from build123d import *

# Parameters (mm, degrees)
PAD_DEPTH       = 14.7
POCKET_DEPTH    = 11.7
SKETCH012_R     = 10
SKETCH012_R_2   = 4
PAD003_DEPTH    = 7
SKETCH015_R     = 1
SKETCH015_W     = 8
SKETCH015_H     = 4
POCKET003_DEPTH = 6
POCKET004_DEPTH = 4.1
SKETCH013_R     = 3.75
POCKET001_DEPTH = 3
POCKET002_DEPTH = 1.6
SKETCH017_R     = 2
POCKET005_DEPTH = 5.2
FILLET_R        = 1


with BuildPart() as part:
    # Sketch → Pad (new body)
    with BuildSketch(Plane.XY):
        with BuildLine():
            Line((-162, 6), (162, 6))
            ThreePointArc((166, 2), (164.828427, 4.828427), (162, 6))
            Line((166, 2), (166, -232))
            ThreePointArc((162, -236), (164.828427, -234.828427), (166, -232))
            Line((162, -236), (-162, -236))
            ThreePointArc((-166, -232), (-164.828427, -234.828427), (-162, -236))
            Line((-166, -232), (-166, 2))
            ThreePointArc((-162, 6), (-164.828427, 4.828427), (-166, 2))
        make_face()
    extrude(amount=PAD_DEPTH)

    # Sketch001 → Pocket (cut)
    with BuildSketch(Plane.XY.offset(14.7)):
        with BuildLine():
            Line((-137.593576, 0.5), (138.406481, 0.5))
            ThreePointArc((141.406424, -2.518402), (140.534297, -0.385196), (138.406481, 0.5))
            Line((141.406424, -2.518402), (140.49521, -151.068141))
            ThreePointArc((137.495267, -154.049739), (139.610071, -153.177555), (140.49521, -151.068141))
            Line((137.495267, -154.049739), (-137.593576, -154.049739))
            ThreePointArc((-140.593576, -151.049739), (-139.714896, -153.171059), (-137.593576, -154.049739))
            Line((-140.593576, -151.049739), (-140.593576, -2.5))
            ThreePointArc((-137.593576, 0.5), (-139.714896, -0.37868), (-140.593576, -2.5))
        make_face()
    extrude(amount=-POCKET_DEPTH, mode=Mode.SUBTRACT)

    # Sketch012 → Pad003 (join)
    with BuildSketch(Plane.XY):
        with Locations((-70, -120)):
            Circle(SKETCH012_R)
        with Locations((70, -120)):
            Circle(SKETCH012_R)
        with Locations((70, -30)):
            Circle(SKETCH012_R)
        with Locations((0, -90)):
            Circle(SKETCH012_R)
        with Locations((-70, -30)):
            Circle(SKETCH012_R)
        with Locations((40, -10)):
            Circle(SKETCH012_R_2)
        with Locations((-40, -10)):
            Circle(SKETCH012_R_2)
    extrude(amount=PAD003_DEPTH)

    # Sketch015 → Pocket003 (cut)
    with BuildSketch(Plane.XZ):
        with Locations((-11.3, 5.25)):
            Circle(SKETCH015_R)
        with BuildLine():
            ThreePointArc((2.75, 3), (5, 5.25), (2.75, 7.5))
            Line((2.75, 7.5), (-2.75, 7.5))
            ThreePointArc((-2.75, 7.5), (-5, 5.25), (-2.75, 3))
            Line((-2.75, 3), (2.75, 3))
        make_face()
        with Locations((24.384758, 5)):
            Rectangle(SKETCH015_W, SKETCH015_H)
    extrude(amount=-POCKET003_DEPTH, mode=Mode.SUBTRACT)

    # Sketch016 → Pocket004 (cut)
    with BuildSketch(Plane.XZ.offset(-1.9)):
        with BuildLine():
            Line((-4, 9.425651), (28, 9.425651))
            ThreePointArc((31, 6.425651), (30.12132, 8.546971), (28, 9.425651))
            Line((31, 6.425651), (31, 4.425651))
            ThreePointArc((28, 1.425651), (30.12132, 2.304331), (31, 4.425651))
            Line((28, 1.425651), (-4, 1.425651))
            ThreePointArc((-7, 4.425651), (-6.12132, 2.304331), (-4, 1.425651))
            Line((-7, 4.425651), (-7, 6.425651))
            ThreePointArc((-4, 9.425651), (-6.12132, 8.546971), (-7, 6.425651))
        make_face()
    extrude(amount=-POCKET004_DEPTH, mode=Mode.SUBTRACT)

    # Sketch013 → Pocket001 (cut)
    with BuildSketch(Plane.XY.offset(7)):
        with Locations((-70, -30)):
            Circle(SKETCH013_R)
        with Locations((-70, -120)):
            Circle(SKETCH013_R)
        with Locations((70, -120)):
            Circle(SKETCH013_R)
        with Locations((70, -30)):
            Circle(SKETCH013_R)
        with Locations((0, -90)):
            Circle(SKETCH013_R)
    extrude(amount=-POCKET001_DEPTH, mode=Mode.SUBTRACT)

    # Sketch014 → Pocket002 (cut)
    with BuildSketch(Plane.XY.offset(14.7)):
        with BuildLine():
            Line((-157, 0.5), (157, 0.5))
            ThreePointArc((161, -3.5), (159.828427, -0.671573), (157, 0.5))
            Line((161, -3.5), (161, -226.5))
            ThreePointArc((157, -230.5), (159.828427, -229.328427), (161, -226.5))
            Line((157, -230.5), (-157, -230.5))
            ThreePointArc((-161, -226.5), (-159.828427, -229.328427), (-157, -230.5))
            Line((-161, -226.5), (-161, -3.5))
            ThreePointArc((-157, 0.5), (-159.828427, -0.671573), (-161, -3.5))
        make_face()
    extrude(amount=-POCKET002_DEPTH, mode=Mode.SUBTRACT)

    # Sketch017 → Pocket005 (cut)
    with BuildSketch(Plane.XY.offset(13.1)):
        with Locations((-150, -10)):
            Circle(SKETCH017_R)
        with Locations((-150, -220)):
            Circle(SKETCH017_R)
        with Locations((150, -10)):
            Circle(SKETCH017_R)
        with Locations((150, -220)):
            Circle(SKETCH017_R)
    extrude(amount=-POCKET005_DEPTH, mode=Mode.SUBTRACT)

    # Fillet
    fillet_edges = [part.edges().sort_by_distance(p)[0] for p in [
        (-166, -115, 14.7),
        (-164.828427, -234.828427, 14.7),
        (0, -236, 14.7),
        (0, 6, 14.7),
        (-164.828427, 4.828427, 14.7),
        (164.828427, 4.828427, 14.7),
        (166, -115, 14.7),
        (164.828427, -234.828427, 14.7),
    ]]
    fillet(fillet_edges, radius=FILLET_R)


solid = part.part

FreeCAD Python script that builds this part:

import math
import FreeCAD as App
import Part
import Sketcher
from FreeCAD import Vector


def edges_at(feature, points):
    """Names of the edges that pass closest to the given points."""
    edges = feature.Shape.Edges
    near = lambda p: min(range(len(edges)), key=lambda i: edges[i].distToShape(Part.Vertex(*p))[0])
    return sorted({f"Edge{near(p) + 1}" for p in points})


def add_polygon(sketch, points):
    """Adds a closed chain of lines whose ends are joined by coincident constraints."""
    first, n = sketch.GeometryCount, len(points)
    for a, b in zip(points, points[1:] + points[:1]):
        sketch.addGeometry(Part.LineSegment(App.Vector(*a, 0), App.Vector(*b, 0)), False)
    for i in range(n):
        sketch.addConstraint(Sketcher.Constraint("Coincident", first + i, 2, first + (i + 1) % n, 1))

doc = App.newDocument("Part")
body = doc.addObject("PartDesign::Body", "Body")

sketch1 = doc.addObject("Sketcher::SketchObject", "Sketch")
body.addObject(sketch1)
sketch1.AttachmentSupport = (doc.XY_Plane, [""])
sketch1.MapMode = "FlatFace"
sketch1.addGeometry([
    Part.LineSegment(Vector(162, 6, 0), Vector(-162, 6, 0)),
    Part.ArcOfCircle(Part.Circle(Vector(-162, 2, 0), Vector(0, 0, 1), 4), math.radians(90), math.radians(180)),
    Part.LineSegment(Vector(-166, 2, 0), Vector(-166, -232, 0)),
    Part.ArcOfCircle(Part.Circle(Vector(-162, -232, 0), Vector(0, 0, 1), 4), math.radians(-180), math.radians(-90)),
    Part.LineSegment(Vector(-162, -236, 0), Vector(162, -236, 0)),
    Part.ArcOfCircle(Part.Circle(Vector(162, -232, 0), Vector(0, 0, 1), 4), math.radians(-90), math.radians(0)),
    Part.LineSegment(Vector(166, -232, 0), Vector(166, 2, 0)),
    Part.ArcOfCircle(Part.Circle(Vector(162, 2, 0), Vector(0, 0, 1), 4), math.radians(0), math.radians(90)),
], False)
sketch1.addConstraint([
    Sketcher.Constraint("Tangent", 0, 2, 1, 1),
    Sketcher.Constraint("Tangent", 1, 2, 2, 1),
    Sketcher.Constraint("Tangent", 2, 2, 3, 1),
    Sketcher.Constraint("Tangent", 3, 2, 4, 1),
    Sketcher.Constraint("Tangent", 4, 2, 5, 1),
    Sketcher.Constraint("Tangent", 5, 2, 6, 1),
    Sketcher.Constraint("Tangent", 6, 2, 7, 1),
    Sketcher.Constraint("Tangent", 7, 2, 0, 1),
    Sketcher.Constraint("Horizontal", 0),
    Sketcher.Constraint("Vertical", 2),
    Sketcher.Constraint("Horizontal", 4),
    Sketcher.Constraint("Vertical", 6),
    Sketcher.Constraint("Equal", 1, 3),
    Sketcher.Constraint("Equal", 3, 5),
    Sketcher.Constraint("Equal", 5, 7),
    Sketcher.Constraint("Radius", 1, 4.0),
    Sketcher.Constraint("DistanceX", 0, 2, 0, 1, 324.0),
    Sketcher.Constraint("DistanceY", 2, 2, 2, 1, 234.0),
    Sketcher.Constraint("DistanceX", 1, 3, -1, 1, 162.0),
    Sketcher.Constraint("DistanceY", -1, 1, 1, 3, 2.0),
])
pad1 = doc.addObject("PartDesign::Pad", "Pad")
body.addObject(pad1)
pad1.Profile = sketch1
pad1.Length = 14.7

sketch2 = doc.addObject("Sketcher::SketchObject", "Sketch001")
body.addObject(sketch2)
sketch2.AttachmentSupport = (doc.XY_Plane, [""])
sketch2.MapMode = "FlatFace"
sketch2.AttachmentOffset = App.Placement(Vector(0, 0, 14.7), App.Rotation())
sketch2.addGeometry([
    Part.LineSegment(Vector(138.406481, 0.5, 0), Vector(-137.593576, 0.5, 0)),
    Part.ArcOfCircle(Part.Circle(Vector(-137.593575, -2.500001, 0), Vector(0, 0, 1), 3.000001), math.radians(90.000022), math.radians(179.999978)),
    Part.LineSegment(Vector(-140.593576, -2.5, 0), Vector(-140.593576, -151.049739, 0)),
    Part.ArcOfCircle(Part.Circle(Vector(-137.593575, -151.049738, 0), Vector(0, 0, 1), 3.000001), math.radians(-179.999978), math.radians(-90.000022)),
    Part.LineSegment(Vector(-137.593576, -154.049739, 0), Vector(137.495267, -154.049739, 0)),
    Part.ArcOfCircle(Part.Circle(Vector(137.495266, -151.049739, 0), Vector(0, 0, 1), 3), math.radians(-89.999984), math.radians(-0.35146)),
    Part.LineSegment(Vector(140.49521, -151.068141, 0), Vector(141.406424, -2.518402, 0)),
    Part.ArcOfCircle(Part.Circle(Vector(138.40648, -2.5, 0), Vector(0, 0, 1), 3), math.radians(-0.351449), math.radians(89.999984)),
], False)
sketch2.addConstraint([
    Sketcher.Constraint("Tangent", 0, 2, 1, 1),
    Sketcher.Constraint("Tangent", 1, 2, 2, 1),
    Sketcher.Constraint("Tangent", 2, 2, 3, 1),
    Sketcher.Constraint("Tangent", 3, 2, 4, 1),
    Sketcher.Constraint("Tangent", 4, 2, 5, 1),
    Sketcher.Constraint("Tangent", 5, 2, 6, 1),
    Sketcher.Constraint("Tangent", 6, 2, 7, 1),
    Sketcher.Constraint("Tangent", 7, 2, 0, 1),
    Sketcher.Constraint("Horizontal", 0),
    Sketcher.Constraint("Vertical", 2),
    Sketcher.Constraint("Horizontal", 4),
    Sketcher.Constraint("Equal", 1, 3),
    Sketcher.Constraint("Equal", 3, 5),
    Sketcher.Constraint("Equal", 5, 7),
    Sketcher.Constraint("Radius", 1, 3.000001),
    Sketcher.Constraint("DistanceX", 1, 3, 6, 2, 278.999999),
    Sketcher.Constraint("DistanceY", 1, 3, -1, 1, 2.500001),
    Sketcher.Constraint("DistanceY", 2, 2, 2, 1, 148.549739),
    Sketcher.Constraint("DistanceY", 6, 2, -1, 1, 2.518402),
    Sketcher.Constraint("DistanceX", -1, 1, 7, 3, 138.40648),
])
pocket1 = doc.addObject("PartDesign::Pocket", "Pocket")
body.addObject(pocket1)
pocket1.Profile = sketch2
pocket1.Length = 11.7

sketch3 = doc.addObject("Sketcher::SketchObject", "Sketch002")
body.addObject(sketch3)
sketch3.AttachmentSupport = (doc.XY_Plane, [""])
sketch3.MapMode = "FlatFace"
sketch3.addGeometry([
    Part.Circle(Vector(-70, -120, 0), Vector(0, 0, 1), 10),
    Part.Circle(Vector(70, -120, 0), Vector(0, 0, 1), 10),
    Part.Circle(Vector(70, -30, 0), Vector(0, 0, 1), 10),
    Part.Circle(Vector(0, -90, 0), Vector(0, 0, 1), 10),
    Part.Circle(Vector(-70, -30, 0), Vector(0, 0, 1), 10),
    Part.Circle(Vector(40, -10, 0), Vector(0, 0, 1), 4),
    Part.Circle(Vector(-40, -10, 0), Vector(0, 0, 1), 4),
], False)
sketch3.addConstraint([
    Sketcher.Constraint("Equal", 0, 1),
    Sketcher.Constraint("Equal", 1, 2),
    Sketcher.Constraint("Equal", 2, 3),
    Sketcher.Constraint("Equal", 3, 4),
    Sketcher.Constraint("Equal", 5, 6),
    Sketcher.Constraint("Symmetric", 0, 3, 1, 3, -2),
    Sketcher.Constraint("Symmetric", 2, 3, 4, 3, -2),
    Sketcher.Constraint("Symmetric", 5, 3, 6, 3, -2),
    Sketcher.Constraint("PointOnObject", 3, 3, -2),
    Sketcher.Constraint("Vertical", 1, 3, 2, 3),
    Sketcher.Constraint("Diameter", 0, 20.0),
    Sketcher.Constraint("Diameter", 5, 8.0),
    Sketcher.Constraint("DistanceX", 0, 3, -1, 1, 70.0),
    Sketcher.Constraint("DistanceY", 0, 3, -1, 1, 120.0),
    Sketcher.Constraint("DistanceY", 2, 3, -1, 1, 30.0),
    Sketcher.Constraint("DistanceY", 3, 3, -1, 1, 90.0),
    Sketcher.Constraint("DistanceX", -1, 1, 5, 3, 40.0),
    Sketcher.Constraint("DistanceY", 5, 3, -1, 1, 10.0),
])
pad2 = doc.addObject("PartDesign::Pad", "Pad001")
body.addObject(pad2)
pad2.Profile = sketch3
pad2.Length = 7

sketch4 = doc.addObject("Sketcher::SketchObject", "Sketch003")
body.addObject(sketch4)
sketch4.AttachmentSupport = (doc.XZ_Plane, [""])
sketch4.MapMode = "FlatFace"
sketch4.addGeometry(Part.Circle(Vector(-11.3, 5.2, 0), Vector(0, 0, 1), 1), False)
sketch4.addGeometry(Part.ArcOfCircle(Part.Circle(Vector(2.8, 5.2, 0), Vector(0, 0, 1), 2.2), math.radians(-90), math.radians(90)), False)
sketch4.addGeometry(Part.LineSegment(Vector(2.8, 7.5, 0), Vector(-2.8, 7.5, 0)), False)
sketch4.addGeometry(Part.ArcOfCircle(Part.Circle(Vector(-2.8, 5.2, 0), Vector(0, 0, 1), 2.2), math.radians(90), math.radians(270)), False)
sketch4.addGeometry(Part.LineSegment(Vector(-2.8, 3, 0), Vector(2.8, 3, 0)), False)
add_polygon(sketch4, [(20.4, 7), (20.4, 3), (28.4, 3), (28.4, 7)])
sketch4.addConstraint([
    Sketcher.Constraint("Tangent", 1, 2, 2, 1),
    Sketcher.Constraint("Tangent", 2, 2, 3, 1),
    Sketcher.Constraint("Tangent", 3, 2, 4, 1),
    Sketcher.Constraint("Tangent", 4, 2, 1, 1),
    Sketcher.Constraint("Horizontal", 2),
    Sketcher.Constraint("Horizontal", 4),
    Sketcher.Constraint("Vertical", 5),
    Sketcher.Constraint("Horizontal", 6),
    Sketcher.Constraint("Vertical", 7),
    Sketcher.Constraint("Horizontal", 8),
    Sketcher.Constraint("Horizontal", 0, 3, 1, 3),
    Sketcher.Constraint("Horizontal", 4, 2, 5, 2),
    Sketcher.Constraint("Diameter", 0, 2.0),
    Sketcher.Constraint("DistanceX", 6, 1, 6, 2, 8.0),
    Sketcher.Constraint("DistanceY", 5, 2, 5, 1, 4.0),
    Sketcher.Constraint("Radius", 1, 2.25),
    Sketcher.Constraint("DistanceX", 2, 2, 2, 1, 5.5),
    Sketcher.Constraint("DistanceY", -1, 1, 3, 2, 3.0),
    Sketcher.Constraint("DistanceX", 0, 3, -1, 1, 11.3),
    Sketcher.Constraint("DistanceX", -1, 1, 1, 3, 2.75),
    Sketcher.Constraint("DistanceX", -1, 1, 5, 2, 20.384758),
])
pocket2 = doc.addObject("PartDesign::Pocket", "Pocket001")
body.addObject(pocket2)
pocket2.Profile = sketch4
pocket2.Length = 6

sketch5 = doc.addObject("Sketcher::SketchObject", "Sketch004")
body.addObject(sketch5)
sketch5.AttachmentSupport = (doc.XZ_Plane, [""])
sketch5.MapMode = "FlatFace"
sketch5.AttachmentOffset = App.Placement(Vector(0, 0, -1.9), App.Rotation())
sketch5.addGeometry([
    Part.LineSegment(Vector(28, 9.4, 0), Vector(-4, 9.4, 0)),
    Part.ArcOfCircle(Part.Circle(Vector(-4, 6.4, 0), Vector(0, 0, 1), 3), math.radians(90), math.radians(180)),
    Part.LineSegment(Vector(-7, 6.4, 0), Vector(-7, 4.4, 0)),
    Part.ArcOfCircle(Part.Circle(Vector(-4, 4.4, 0), Vector(0, 0, 1), 3), math.radians(-180), math.radians(-90)),
    Part.LineSegment(Vector(-4, 1.4, 0), Vector(28, 1.4, 0)),
    Part.ArcOfCircle(Part.Circle(Vector(28, 4.4, 0), Vector(0, 0, 1), 3), math.radians(-90), math.radians(0)),
    Part.LineSegment(Vector(31, 4.4, 0), Vector(31, 6.4, 0)),
    Part.ArcOfCircle(Part.Circle(Vector(28, 6.4, 0), Vector(0, 0, 1), 3), math.radians(0), math.radians(90)),
], False)
sketch5.addConstraint([
    Sketcher.Constraint("Tangent", 0, 2, 1, 1),
    Sketcher.Constraint("Tangent", 1, 2, 2, 1),
    Sketcher.Constraint("Tangent", 2, 2, 3, 1),
    Sketcher.Constraint("Tangent", 3, 2, 4, 1),
    Sketcher.Constraint("Tangent", 4, 2, 5, 1),
    Sketcher.Constraint("Tangent", 5, 2, 6, 1),
    Sketcher.Constraint("Tangent", 6, 2, 7, 1),
    Sketcher.Constraint("Tangent", 7, 2, 0, 1),
    Sketcher.Constraint("Horizontal", 0),
    Sketcher.Constraint("Vertical", 2),
    Sketcher.Constraint("Horizontal", 4),
    Sketcher.Constraint("Vertical", 6),
    Sketcher.Constraint("Equal", 1, 3),
    Sketcher.Constraint("Equal", 3, 5),
    Sketcher.Constraint("Equal", 5, 7),
    Sketcher.Constraint("Radius", 1, 3.000001),
    Sketcher.Constraint("DistanceX", 0, 2, 0, 1, 32.0),
    Sketcher.Constraint("DistanceY", 2, 2, 2, 1, 2.0),
    Sketcher.Constraint("DistanceX", 1, 3, -1, 1, 3.999999),
    Sketcher.Constraint("DistanceY", -1, 1, 1, 3, 6.42565),
])
pocket3 = doc.addObject("PartDesign::Pocket", "Pocket002")
body.addObject(pocket3)
pocket3.Profile = sketch5
pocket3.Length = 4.1

sketch6 = doc.addObject("Sketcher::SketchObject", "Sketch005")
body.addObject(sketch6)
sketch6.AttachmentSupport = (doc.XY_Plane, [""])
sketch6.MapMode = "FlatFace"
sketch6.AttachmentOffset = App.Placement(Vector(0, 0, 7), App.Rotation())
sketch6.addGeometry([
    Part.Circle(Vector(-70, -30, 0), Vector(0, 0, 1), 3.8),
    Part.Circle(Vector(-70, -120, 0), Vector(0, 0, 1), 3.8),
    Part.Circle(Vector(70, -120, 0), Vector(0, 0, 1), 3.8),
    Part.Circle(Vector(70, -30, 0), Vector(0, 0, 1), 3.8),
    Part.Circle(Vector(0, -90, 0), Vector(0, 0, 1), 3.8),
], False)
sketch6.addConstraint([
    Sketcher.Constraint("Equal", 0, 1),
    Sketcher.Constraint("Equal", 1, 2),
    Sketcher.Constraint("Equal", 2, 3),
    Sketcher.Constraint("Equal", 3, 4),
    Sketcher.Constraint("Symmetric", 1, 3, 2, 3, -2),
    Sketcher.Constraint("Symmetric", 0, 3, 3, 3, -2),
    Sketcher.Constraint("PointOnObject", 4, 3, -2),
    Sketcher.Constraint("Vertical", 0, 3, 1, 3),
    Sketcher.Constraint("Diameter", 0, 7.5),
    Sketcher.Constraint("DistanceX", 0, 3, -1, 1, 70.0),
    Sketcher.Constraint("DistanceY", 0, 3, -1, 1, 30.0),
    Sketcher.Constraint("DistanceY", 1, 3, -1, 1, 120.0),
    Sketcher.Constraint("DistanceY", 4, 3, -1, 1, 90.0),
])
pocket4 = doc.addObject("PartDesign::Pocket", "Pocket003")
body.addObject(pocket4)
pocket4.Profile = sketch6
pocket4.Length = 3

sketch7 = doc.addObject("Sketcher::SketchObject", "Sketch006")
body.addObject(sketch7)
sketch7.AttachmentSupport = (doc.XY_Plane, [""])
sketch7.MapMode = "FlatFace"
sketch7.AttachmentOffset = App.Placement(Vector(0, 0, 14.7), App.Rotation())
sketch7.addGeometry([
    Part.LineSegment(Vector(157, 0.5, 0), Vector(-157, 0.5, 0)),
    Part.ArcOfCircle(Part.Circle(Vector(-157, -3.5, 0), Vector(0, 0, 1), 4), math.radians(90), math.radians(180)),
    Part.LineSegment(Vector(-161, -3.5, 0), Vector(-161, -226.5, 0)),
    Part.ArcOfCircle(Part.Circle(Vector(-157, -226.5, 0), Vector(0, 0, 1), 4), math.radians(-180), math.radians(-90)),
    Part.LineSegment(Vector(-157, -230.5, 0), Vector(157, -230.5, 0)),
    Part.ArcOfCircle(Part.Circle(Vector(157, -226.5, 0), Vector(0, 0, 1), 4), math.radians(-90), math.radians(0)),
    Part.LineSegment(Vector(161, -226.5, 0), Vector(161, -3.5, 0)),
    Part.ArcOfCircle(Part.Circle(Vector(157, -3.5, 0), Vector(0, 0, 1), 4), math.radians(0), math.radians(90)),
], False)
sketch7.addConstraint([
    Sketcher.Constraint("Tangent", 0, 2, 1, 1),
    Sketcher.Constraint("Tangent", 1, 2, 2, 1),
    Sketcher.Constraint("Tangent", 2, 2, 3, 1),
    Sketcher.Constraint("Tangent", 3, 2, 4, 1),
    Sketcher.Constraint("Tangent", 4, 2, 5, 1),
    Sketcher.Constraint("Tangent", 5, 2, 6, 1),
    Sketcher.Constraint("Tangent", 6, 2, 7, 1),
    Sketcher.Constraint("Tangent", 7, 2, 0, 1),
    Sketcher.Constraint("Horizontal", 0),
    Sketcher.Constraint("Vertical", 2),
    Sketcher.Constraint("Horizontal", 4),
    Sketcher.Constraint("Vertical", 6),
    Sketcher.Constraint("Equal", 1, 3),
    Sketcher.Constraint("Equal", 3, 5),
    Sketcher.Constraint("Equal", 5, 7),
    Sketcher.Constraint("Radius", 1, 4.0),
    Sketcher.Constraint("DistanceX", 0, 2, 0, 1, 314.0),
    Sketcher.Constraint("DistanceY", 2, 2, 2, 1, 223.0),
    Sketcher.Constraint("DistanceX", 1, 3, -1, 1, 157.0),
    Sketcher.Constraint("DistanceY", 1, 3, -1, 1, 3.5),
])
pocket5 = doc.addObject("PartDesign::Pocket", "Pocket004")
body.addObject(pocket5)
pocket5.Profile = sketch7
pocket5.Length = 1.6

sketch8 = doc.addObject("Sketcher::SketchObject", "Sketch007")
body.addObject(sketch8)
sketch8.AttachmentSupport = (doc.XY_Plane, [""])
sketch8.MapMode = "FlatFace"
sketch8.AttachmentOffset = App.Placement(Vector(0, 0, 13.1), App.Rotation())
sketch8.addGeometry([
    Part.Circle(Vector(-150, -10, 0), Vector(0, 0, 1), 2),
    Part.Circle(Vector(-150, -220, 0), Vector(0, 0, 1), 2),
    Part.Circle(Vector(150, -10, 0), Vector(0, 0, 1), 2),
    Part.Circle(Vector(150, -220, 0), Vector(0, 0, 1), 2),
], False)
sketch8.addConstraint([
    Sketcher.Constraint("Equal", 0, 1),
    Sketcher.Constraint("Equal", 1, 2),
    Sketcher.Constraint("Equal", 2, 3),
    Sketcher.Constraint("Symmetric", 0, 3, 2, 3, -2),
    Sketcher.Constraint("Symmetric", 1, 3, 3, 3, -2),
    Sketcher.Constraint("Vertical", 0, 3, 1, 3),
    Sketcher.Constraint("Diameter", 0, 4.0),
    Sketcher.Constraint("DistanceX", 0, 3, -1, 1, 150.0),
    Sketcher.Constraint("DistanceY", 0, 3, -1, 1, 10.0),
    Sketcher.Constraint("DistanceY", 1, 3, -1, 1, 220.0),
])
pocket6 = doc.addObject("PartDesign::Pocket", "Pocket005")
body.addObject(pocket6)
pocket6.Profile = sketch8
pocket6.Length = 5.2
doc.recompute()

fillet = doc.addObject("PartDesign::Fillet", "Fillet")
body.addObject(fillet)
fillet.Base = (pocket6, edges_at(pocket6, [
    (-166, -115, 14.7),
    (-164.828, -234.828, 14.7),
    (0, -236, 14.7),
    (0, 6, 14.7),
    (-164.828, 4.828, 14.7),
    (164.828, 4.828, 14.7),
    (166, -115, 14.7),
    (164.828, -234.828, 14.7),
]))
fillet.Radius = 1

doc.recompute()
